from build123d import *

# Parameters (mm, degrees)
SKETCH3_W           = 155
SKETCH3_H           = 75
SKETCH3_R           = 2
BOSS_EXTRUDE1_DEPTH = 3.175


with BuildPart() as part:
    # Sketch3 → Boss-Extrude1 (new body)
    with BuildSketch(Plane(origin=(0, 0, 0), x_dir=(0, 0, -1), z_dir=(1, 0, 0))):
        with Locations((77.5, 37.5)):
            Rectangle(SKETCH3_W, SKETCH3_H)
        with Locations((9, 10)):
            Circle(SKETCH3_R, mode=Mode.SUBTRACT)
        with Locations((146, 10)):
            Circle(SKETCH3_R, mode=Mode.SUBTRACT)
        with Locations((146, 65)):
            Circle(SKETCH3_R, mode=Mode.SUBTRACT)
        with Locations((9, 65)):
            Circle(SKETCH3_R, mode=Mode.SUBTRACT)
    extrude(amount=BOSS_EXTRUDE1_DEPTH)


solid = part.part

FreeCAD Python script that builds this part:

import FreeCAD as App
import Part
import Sketcher

doc = App.newDocument("Part")
body = doc.addObject("PartDesign::Body", "Body")

sketch1 = doc.addObject("Sketcher::SketchObject", "Sketch")
body.addObject(sketch1)
sketch1.AttachmentSupport = (doc.YZ_Plane, [""])
sketch1.MapMode = "FlatFace"
sketch1.addGeometry([
    Part.LineSegment(App.Vector(75, 0, 0), App.Vector(0, 0, 0)),
    Part.LineSegment(App.Vector(0, 0, 0), App.Vector(0, -155, 0)),
    Part.LineSegment(App.Vector(0, -155, 0), App.Vector(75, -155, 0)),
    Part.LineSegment(App.Vector(75, -155, 0), App.Vector(75, 0, 0)),
    Part.Circle(App.Vector(10, -9, 0), App.Vector(0, 0, 1), 2),
    Part.Circle(App.Vector(10, -146, 0), App.Vector(0, 0, 1), 2),
    Part.Circle(App.Vector(65, -9, 0), App.Vector(0, 0, 1), 2),
    Part.Circle(App.Vector(65, -146, 0), App.Vector(0, 0, 1), 2),
], False)
sketch1.addConstraint([
    Sketcher.Constraint("Coincident", 0, 2, 1, 1),
    Sketcher.Constraint("Coincident", 1, 2, 2, 1),
    Sketcher.Constraint("Coincident", 2, 2, 3, 1),
    Sketcher.Constraint("Coincident", 3, 2, 0, 1),
    Sketcher.Constraint("Horizontal", 0),
    Sketcher.Constraint("Vertical", 1),
    Sketcher.Constraint("Horizontal", 2),
    Sketcher.Constraint("Vertical", 3),
    Sketcher.Constraint("Coincident", 0, 2, -1, 1),
    Sketcher.Constraint("Equal", 4, 5),
    Sketcher.Constraint("Equal", 5, 6),
    Sketcher.Constraint("Equal", 6, 7),
    Sketcher.Constraint("Horizontal", 4, 3, 6, 3),
    Sketcher.Constraint("Horizontal", 5, 3, 7, 3),
    Sketcher.Constraint("Vertical", 4, 3, 5, 3),
    Sketcher.Constraint("Vertical", 6, 3, 7, 3),
    Sketcher.Constraint("Diameter", 4, 4.0),
    Sketcher.Constraint("DistanceX", 0, 2, 0, 1, 75.0),
    Sketcher.Constraint("DistanceY", 1, 2, 1, 1, 155.0),
    Sketcher.Constraint("DistanceX", -1, 1, 4, 3, 10.0),
    Sketcher.Constraint("DistanceY", 4, 3, -1, 1, 9.0),
    Sketcher.Constraint("DistanceY", 5, 3, -1, 1, 146.0),
    Sketcher.Constraint("DistanceX", -1, 1, 6, 3, 65.0),
])
pad1 = doc.addObject("PartDesign::Pad", "Pad")
body.addObject(pad1)
pad1.Profile = sketch1
pad1.Length = 3.175

doc.recompute()
